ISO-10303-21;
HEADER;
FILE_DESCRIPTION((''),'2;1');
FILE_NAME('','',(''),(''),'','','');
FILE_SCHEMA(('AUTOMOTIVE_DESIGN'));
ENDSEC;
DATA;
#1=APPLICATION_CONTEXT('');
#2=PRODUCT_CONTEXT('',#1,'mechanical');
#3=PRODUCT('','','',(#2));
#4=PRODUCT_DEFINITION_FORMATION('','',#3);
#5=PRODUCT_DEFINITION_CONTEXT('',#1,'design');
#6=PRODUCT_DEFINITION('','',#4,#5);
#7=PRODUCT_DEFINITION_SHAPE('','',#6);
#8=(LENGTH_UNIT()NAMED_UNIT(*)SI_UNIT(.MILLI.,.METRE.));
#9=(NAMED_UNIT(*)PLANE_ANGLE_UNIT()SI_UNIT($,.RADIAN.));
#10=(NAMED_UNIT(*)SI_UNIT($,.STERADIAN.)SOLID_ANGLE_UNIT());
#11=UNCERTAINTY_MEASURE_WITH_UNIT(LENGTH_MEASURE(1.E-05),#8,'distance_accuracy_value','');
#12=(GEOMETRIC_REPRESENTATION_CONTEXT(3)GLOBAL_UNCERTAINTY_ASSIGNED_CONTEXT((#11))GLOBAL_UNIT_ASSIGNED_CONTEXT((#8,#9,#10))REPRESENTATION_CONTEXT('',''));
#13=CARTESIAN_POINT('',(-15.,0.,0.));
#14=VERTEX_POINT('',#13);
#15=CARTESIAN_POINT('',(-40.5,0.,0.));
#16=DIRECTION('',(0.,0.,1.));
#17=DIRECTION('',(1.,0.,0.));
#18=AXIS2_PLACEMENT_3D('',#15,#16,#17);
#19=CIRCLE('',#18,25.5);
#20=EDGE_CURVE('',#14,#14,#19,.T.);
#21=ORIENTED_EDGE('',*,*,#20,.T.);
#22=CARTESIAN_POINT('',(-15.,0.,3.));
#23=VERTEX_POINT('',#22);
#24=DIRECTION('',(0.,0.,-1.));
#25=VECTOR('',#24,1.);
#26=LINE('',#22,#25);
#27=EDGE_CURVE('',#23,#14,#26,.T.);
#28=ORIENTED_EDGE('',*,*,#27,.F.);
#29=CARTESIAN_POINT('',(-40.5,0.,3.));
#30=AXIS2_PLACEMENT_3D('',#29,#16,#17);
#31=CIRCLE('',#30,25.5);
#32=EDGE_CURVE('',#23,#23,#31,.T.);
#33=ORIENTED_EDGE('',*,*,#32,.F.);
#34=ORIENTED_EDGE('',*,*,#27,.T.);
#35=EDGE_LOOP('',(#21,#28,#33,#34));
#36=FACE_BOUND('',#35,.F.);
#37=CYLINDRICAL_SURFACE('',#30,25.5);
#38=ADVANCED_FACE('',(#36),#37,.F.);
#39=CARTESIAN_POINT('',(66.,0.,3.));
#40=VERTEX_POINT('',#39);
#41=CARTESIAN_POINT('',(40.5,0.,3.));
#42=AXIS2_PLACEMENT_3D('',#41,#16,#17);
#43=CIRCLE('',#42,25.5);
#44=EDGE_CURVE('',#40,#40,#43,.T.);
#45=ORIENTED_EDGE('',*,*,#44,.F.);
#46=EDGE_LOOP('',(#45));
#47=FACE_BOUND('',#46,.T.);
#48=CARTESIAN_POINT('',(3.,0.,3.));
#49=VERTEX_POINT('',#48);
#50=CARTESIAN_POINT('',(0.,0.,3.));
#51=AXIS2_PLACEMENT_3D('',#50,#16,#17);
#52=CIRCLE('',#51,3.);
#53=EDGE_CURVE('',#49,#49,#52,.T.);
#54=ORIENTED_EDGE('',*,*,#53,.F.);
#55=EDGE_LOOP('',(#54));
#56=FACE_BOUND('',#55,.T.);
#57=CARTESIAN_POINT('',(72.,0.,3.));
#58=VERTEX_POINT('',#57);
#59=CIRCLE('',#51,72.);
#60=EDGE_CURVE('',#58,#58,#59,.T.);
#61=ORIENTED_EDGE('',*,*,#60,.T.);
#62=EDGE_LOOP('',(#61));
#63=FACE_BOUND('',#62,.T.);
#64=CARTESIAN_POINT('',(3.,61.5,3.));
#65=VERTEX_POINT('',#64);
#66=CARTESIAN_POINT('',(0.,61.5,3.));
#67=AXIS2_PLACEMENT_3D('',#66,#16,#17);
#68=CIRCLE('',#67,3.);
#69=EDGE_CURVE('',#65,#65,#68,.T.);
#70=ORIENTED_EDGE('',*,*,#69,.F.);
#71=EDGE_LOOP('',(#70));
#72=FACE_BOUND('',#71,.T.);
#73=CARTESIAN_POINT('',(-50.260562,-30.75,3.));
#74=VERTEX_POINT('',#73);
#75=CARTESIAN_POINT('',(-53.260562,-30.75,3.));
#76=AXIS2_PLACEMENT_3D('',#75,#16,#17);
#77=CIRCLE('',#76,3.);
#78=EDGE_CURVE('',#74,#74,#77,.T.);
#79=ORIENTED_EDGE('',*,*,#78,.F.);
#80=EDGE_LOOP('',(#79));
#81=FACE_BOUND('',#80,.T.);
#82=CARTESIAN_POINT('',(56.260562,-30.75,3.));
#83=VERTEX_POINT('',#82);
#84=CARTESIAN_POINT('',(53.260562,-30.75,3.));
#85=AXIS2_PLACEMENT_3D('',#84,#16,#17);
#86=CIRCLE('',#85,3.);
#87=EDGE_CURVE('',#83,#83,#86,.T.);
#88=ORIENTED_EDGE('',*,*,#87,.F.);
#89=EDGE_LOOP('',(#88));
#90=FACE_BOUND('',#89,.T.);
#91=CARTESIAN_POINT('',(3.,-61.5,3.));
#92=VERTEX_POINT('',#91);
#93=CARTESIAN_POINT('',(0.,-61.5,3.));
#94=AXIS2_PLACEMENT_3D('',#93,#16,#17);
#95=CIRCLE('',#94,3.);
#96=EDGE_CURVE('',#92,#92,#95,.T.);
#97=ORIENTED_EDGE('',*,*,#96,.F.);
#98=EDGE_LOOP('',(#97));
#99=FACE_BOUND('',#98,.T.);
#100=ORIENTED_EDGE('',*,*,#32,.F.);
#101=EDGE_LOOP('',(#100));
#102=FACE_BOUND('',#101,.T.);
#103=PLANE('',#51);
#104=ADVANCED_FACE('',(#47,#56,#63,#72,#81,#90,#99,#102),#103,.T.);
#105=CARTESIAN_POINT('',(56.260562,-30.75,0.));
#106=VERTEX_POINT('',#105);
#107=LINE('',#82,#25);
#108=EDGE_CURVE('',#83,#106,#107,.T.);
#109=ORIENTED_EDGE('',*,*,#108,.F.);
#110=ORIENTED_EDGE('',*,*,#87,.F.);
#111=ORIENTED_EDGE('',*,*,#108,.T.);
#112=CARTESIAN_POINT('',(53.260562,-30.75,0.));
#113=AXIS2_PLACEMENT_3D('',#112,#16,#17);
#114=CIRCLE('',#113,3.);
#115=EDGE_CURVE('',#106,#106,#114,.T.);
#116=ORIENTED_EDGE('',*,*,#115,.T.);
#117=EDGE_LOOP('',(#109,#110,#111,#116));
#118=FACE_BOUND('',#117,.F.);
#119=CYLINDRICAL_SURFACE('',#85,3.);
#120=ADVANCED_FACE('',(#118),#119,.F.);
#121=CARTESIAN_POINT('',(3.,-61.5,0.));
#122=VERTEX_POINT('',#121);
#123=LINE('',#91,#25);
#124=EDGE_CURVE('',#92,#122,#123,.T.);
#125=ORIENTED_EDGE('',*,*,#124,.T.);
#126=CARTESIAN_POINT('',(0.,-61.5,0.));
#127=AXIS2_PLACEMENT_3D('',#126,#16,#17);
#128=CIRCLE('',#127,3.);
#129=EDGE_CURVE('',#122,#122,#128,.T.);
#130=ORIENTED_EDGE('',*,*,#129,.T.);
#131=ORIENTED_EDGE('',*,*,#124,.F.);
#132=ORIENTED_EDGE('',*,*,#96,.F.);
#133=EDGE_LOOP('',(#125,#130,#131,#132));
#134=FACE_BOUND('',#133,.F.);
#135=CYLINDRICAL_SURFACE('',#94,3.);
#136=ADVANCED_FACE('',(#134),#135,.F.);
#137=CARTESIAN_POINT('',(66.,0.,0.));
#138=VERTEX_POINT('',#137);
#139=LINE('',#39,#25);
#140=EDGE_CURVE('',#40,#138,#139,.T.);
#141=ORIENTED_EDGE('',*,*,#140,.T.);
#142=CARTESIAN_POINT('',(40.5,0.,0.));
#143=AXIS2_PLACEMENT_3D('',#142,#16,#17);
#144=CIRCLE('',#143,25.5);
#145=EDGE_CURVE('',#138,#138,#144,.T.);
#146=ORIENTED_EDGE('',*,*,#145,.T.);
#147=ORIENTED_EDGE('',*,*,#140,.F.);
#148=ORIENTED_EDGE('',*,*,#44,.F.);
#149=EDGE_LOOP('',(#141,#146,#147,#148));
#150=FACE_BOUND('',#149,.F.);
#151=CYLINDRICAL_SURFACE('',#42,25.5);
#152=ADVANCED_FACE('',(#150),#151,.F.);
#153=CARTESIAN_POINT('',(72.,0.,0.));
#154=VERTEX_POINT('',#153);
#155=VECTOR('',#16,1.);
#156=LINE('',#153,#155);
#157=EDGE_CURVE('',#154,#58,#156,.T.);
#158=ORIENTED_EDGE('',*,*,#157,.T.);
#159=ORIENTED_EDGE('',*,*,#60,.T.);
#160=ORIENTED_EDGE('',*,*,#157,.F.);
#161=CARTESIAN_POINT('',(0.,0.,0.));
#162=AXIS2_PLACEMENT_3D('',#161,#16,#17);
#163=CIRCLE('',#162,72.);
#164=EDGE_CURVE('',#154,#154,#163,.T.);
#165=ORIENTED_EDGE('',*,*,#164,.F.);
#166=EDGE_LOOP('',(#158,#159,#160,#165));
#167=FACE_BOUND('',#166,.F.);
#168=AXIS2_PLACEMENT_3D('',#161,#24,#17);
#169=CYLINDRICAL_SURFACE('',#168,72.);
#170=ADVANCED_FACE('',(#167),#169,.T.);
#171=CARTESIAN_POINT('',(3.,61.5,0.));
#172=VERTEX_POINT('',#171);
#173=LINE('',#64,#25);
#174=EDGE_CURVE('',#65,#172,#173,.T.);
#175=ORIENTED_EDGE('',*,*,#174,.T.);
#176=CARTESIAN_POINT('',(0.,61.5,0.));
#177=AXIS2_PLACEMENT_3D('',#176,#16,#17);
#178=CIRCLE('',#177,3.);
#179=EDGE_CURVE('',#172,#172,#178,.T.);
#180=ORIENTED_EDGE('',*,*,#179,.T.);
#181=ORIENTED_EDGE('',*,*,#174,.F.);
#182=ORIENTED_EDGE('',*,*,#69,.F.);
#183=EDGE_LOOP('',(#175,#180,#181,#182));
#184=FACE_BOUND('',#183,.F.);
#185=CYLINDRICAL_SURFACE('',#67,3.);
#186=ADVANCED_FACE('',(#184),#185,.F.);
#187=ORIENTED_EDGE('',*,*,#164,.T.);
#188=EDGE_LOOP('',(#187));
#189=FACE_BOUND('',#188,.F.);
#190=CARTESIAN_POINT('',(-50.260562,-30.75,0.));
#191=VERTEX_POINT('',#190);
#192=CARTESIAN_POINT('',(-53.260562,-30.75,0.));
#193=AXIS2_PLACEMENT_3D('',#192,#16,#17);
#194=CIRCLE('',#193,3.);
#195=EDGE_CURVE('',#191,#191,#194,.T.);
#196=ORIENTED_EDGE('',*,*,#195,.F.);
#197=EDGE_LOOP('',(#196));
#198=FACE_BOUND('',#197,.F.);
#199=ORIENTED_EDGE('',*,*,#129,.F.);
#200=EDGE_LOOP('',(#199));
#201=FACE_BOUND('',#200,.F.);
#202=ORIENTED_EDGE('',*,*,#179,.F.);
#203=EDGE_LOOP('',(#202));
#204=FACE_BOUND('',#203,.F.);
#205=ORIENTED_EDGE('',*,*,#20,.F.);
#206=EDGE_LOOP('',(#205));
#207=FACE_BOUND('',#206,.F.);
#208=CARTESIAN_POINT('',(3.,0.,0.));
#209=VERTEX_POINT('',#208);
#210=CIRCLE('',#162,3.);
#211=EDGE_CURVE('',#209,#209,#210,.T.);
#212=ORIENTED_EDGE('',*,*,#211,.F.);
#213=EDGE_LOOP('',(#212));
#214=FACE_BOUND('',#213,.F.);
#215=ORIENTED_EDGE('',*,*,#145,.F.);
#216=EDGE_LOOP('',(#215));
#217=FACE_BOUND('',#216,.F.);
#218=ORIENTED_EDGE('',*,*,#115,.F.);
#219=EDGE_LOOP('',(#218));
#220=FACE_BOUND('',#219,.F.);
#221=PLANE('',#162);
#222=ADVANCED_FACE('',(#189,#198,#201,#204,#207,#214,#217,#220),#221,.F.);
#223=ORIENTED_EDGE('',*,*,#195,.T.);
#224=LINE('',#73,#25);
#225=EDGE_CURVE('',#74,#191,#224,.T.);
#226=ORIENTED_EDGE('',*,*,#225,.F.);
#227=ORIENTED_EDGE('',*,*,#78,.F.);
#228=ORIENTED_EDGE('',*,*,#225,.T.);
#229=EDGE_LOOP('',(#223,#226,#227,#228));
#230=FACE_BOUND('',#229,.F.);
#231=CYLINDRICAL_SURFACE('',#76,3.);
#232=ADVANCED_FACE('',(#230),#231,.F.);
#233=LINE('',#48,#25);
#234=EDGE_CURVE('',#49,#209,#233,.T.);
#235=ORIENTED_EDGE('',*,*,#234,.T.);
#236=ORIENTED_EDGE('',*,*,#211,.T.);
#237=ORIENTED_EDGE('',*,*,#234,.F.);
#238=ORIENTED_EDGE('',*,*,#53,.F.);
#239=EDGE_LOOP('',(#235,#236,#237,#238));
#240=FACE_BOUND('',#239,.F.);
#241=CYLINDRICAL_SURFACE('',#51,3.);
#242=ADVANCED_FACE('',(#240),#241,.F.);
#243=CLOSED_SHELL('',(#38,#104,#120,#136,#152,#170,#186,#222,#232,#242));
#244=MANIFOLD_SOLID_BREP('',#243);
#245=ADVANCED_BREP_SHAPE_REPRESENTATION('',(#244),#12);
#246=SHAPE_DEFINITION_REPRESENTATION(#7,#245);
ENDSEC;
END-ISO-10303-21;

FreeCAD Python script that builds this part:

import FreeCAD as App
import Part
import Sketcher

doc = App.newDocument("Part")
body = doc.addObject("PartDesign::Body", "Body")

# Sketch on XY plane
sketch1 = body.newObject("Sketcher::SketchObject", "Sketch")
sketch1.AttachmentSupport = (doc.getObject("XY_Plane"), [""])
sketch1.MapMode = "FlatFace"
sketch1.addGeometry(Part.Circle(App.Vector(0, 0, 0), App.Vector(0, 0, 1), 72), False)
sketch1.addConstraint([
    Sketcher.Constraint("Coincident", 0, 3, -1, 1),
    Sketcher.Constraint("Diameter", 0, 144.0),
])
pad1 = body.newObject("PartDesign::Pad", "Pad")
pad1.Profile = sketch1
pad1.Length = 3

# Sketch on XY plane
sketch2 = body.newObject("Sketcher::SketchObject", "Sketch001")
sketch2.AttachmentSupport = (doc.getObject("XY_Plane"), [""])
sketch2.MapMode = "FlatFace"
sketch2.AttachmentOffset = App.Placement(App.Vector(0, 0, 3), App.Rotation())
sketch2.addGeometry([
    Part.Circle(App.Vector(-40.5, 0, 0), App.Vector(0, 0, 1), 25.5),
    Part.Circle(App.Vector(40.5, 0, 0), App.Vector(0, 0, 1), 25.5),
], False)
sketch2.addConstraint([
    Sketcher.Constraint("Equal", 0, 1),
    Sketcher.Constraint("Symmetric", 0, 3, 1, 3, -1, 1),
    Sketcher.Constraint("PointOnObject", 0, 3, -1),
    Sketcher.Constraint("Diameter", 0, 51.0),
    Sketcher.Constraint("DistanceX", 0, 3, 1, 3, 81.0),
])
pocket1 = body.newObject("PartDesign::Pocket", "Pocket")
pocket1.Profile = sketch2
pocket1.Length = 3

# Sketch on XY plane
sketch3 = body.newObject("Sketcher::SketchObject", "Sketch002")
sketch3.AttachmentSupport = (doc.getObject("XY_Plane"), [""])
sketch3.MapMode = "FlatFace"
sketch3.AttachmentOffset = App.Placement(App.Vector(0, 0, 3), App.Rotation())
sketch3.addGeometry([
    Part.Circle(App.Vector(0, 61.5, 0), App.Vector(0, 0, 1), 3),
    Part.Circle(App.Vector(0, 0, 0), App.Vector(0, 0, 1), 3),
    Part.Circle(App.Vector(0, -61.5, 0), App.Vector(0, 0, 1), 3),
], False)
sketch3.addConstraint([
    Sketcher.Constraint("Coincident", 1, 3, -1, 1),
    Sketcher.Constraint("Equal", 0, 1),
    Sketcher.Constraint("Equal", 1, 2),
    Sketcher.Constraint("Symmetric", 0, 3, 2, 3, -1, 1),
    Sketcher.Constraint("PointOnObject", 0, 3, -2),
    Sketcher.Constraint("Diameter", 0, 6.0),
    Sketcher.Constraint("DistanceY", 2, 3, 0, 3, 123.0),
])
pocket2 = body.newObject("PartDesign::Pocket", "Pocket001")
pocket2.Profile = sketch3
pocket2.Length = 25.4

# Sketch on XY plane
sketch4 = body.newObject("Sketcher::SketchObject", "Sketch003")
sketch4.AttachmentSupport = (doc.getObject("XY_Plane"), [""])
sketch4.MapMode = "FlatFace"
sketch4.AttachmentOffset = App.Placement(App.Vector(0, 0, 3), App.Rotation())
sketch4.addGeometry([
    Part.Circle(App.Vector(-53.260562, -30.75, 0), App.Vector(0, 0, 1), 3),
    Part.Circle(App.Vector(53.260562, -30.75, 0), App.Vector(0, 0, 1), 3),
], False)
sketch4.addConstraint([
    Sketcher.Constraint("Equal", 0, 1),
    Sketcher.Constraint("Symmetric", 0, 3, 1, 3, -2),
    Sketcher.Constraint("Diameter", 0, 6.0),
    Sketcher.Constraint("DistanceY", 0, 3, -1, 1, 30.75),
    Sketcher.Constraint("DistanceX", 0, 3, -1, 1, 53.260562),
])
pocket3 = body.newObject("PartDesign::Pocket", "Pocket002")
pocket3.Profile = sketch4
pocket3.Length = 25.4

doc.recompute()
